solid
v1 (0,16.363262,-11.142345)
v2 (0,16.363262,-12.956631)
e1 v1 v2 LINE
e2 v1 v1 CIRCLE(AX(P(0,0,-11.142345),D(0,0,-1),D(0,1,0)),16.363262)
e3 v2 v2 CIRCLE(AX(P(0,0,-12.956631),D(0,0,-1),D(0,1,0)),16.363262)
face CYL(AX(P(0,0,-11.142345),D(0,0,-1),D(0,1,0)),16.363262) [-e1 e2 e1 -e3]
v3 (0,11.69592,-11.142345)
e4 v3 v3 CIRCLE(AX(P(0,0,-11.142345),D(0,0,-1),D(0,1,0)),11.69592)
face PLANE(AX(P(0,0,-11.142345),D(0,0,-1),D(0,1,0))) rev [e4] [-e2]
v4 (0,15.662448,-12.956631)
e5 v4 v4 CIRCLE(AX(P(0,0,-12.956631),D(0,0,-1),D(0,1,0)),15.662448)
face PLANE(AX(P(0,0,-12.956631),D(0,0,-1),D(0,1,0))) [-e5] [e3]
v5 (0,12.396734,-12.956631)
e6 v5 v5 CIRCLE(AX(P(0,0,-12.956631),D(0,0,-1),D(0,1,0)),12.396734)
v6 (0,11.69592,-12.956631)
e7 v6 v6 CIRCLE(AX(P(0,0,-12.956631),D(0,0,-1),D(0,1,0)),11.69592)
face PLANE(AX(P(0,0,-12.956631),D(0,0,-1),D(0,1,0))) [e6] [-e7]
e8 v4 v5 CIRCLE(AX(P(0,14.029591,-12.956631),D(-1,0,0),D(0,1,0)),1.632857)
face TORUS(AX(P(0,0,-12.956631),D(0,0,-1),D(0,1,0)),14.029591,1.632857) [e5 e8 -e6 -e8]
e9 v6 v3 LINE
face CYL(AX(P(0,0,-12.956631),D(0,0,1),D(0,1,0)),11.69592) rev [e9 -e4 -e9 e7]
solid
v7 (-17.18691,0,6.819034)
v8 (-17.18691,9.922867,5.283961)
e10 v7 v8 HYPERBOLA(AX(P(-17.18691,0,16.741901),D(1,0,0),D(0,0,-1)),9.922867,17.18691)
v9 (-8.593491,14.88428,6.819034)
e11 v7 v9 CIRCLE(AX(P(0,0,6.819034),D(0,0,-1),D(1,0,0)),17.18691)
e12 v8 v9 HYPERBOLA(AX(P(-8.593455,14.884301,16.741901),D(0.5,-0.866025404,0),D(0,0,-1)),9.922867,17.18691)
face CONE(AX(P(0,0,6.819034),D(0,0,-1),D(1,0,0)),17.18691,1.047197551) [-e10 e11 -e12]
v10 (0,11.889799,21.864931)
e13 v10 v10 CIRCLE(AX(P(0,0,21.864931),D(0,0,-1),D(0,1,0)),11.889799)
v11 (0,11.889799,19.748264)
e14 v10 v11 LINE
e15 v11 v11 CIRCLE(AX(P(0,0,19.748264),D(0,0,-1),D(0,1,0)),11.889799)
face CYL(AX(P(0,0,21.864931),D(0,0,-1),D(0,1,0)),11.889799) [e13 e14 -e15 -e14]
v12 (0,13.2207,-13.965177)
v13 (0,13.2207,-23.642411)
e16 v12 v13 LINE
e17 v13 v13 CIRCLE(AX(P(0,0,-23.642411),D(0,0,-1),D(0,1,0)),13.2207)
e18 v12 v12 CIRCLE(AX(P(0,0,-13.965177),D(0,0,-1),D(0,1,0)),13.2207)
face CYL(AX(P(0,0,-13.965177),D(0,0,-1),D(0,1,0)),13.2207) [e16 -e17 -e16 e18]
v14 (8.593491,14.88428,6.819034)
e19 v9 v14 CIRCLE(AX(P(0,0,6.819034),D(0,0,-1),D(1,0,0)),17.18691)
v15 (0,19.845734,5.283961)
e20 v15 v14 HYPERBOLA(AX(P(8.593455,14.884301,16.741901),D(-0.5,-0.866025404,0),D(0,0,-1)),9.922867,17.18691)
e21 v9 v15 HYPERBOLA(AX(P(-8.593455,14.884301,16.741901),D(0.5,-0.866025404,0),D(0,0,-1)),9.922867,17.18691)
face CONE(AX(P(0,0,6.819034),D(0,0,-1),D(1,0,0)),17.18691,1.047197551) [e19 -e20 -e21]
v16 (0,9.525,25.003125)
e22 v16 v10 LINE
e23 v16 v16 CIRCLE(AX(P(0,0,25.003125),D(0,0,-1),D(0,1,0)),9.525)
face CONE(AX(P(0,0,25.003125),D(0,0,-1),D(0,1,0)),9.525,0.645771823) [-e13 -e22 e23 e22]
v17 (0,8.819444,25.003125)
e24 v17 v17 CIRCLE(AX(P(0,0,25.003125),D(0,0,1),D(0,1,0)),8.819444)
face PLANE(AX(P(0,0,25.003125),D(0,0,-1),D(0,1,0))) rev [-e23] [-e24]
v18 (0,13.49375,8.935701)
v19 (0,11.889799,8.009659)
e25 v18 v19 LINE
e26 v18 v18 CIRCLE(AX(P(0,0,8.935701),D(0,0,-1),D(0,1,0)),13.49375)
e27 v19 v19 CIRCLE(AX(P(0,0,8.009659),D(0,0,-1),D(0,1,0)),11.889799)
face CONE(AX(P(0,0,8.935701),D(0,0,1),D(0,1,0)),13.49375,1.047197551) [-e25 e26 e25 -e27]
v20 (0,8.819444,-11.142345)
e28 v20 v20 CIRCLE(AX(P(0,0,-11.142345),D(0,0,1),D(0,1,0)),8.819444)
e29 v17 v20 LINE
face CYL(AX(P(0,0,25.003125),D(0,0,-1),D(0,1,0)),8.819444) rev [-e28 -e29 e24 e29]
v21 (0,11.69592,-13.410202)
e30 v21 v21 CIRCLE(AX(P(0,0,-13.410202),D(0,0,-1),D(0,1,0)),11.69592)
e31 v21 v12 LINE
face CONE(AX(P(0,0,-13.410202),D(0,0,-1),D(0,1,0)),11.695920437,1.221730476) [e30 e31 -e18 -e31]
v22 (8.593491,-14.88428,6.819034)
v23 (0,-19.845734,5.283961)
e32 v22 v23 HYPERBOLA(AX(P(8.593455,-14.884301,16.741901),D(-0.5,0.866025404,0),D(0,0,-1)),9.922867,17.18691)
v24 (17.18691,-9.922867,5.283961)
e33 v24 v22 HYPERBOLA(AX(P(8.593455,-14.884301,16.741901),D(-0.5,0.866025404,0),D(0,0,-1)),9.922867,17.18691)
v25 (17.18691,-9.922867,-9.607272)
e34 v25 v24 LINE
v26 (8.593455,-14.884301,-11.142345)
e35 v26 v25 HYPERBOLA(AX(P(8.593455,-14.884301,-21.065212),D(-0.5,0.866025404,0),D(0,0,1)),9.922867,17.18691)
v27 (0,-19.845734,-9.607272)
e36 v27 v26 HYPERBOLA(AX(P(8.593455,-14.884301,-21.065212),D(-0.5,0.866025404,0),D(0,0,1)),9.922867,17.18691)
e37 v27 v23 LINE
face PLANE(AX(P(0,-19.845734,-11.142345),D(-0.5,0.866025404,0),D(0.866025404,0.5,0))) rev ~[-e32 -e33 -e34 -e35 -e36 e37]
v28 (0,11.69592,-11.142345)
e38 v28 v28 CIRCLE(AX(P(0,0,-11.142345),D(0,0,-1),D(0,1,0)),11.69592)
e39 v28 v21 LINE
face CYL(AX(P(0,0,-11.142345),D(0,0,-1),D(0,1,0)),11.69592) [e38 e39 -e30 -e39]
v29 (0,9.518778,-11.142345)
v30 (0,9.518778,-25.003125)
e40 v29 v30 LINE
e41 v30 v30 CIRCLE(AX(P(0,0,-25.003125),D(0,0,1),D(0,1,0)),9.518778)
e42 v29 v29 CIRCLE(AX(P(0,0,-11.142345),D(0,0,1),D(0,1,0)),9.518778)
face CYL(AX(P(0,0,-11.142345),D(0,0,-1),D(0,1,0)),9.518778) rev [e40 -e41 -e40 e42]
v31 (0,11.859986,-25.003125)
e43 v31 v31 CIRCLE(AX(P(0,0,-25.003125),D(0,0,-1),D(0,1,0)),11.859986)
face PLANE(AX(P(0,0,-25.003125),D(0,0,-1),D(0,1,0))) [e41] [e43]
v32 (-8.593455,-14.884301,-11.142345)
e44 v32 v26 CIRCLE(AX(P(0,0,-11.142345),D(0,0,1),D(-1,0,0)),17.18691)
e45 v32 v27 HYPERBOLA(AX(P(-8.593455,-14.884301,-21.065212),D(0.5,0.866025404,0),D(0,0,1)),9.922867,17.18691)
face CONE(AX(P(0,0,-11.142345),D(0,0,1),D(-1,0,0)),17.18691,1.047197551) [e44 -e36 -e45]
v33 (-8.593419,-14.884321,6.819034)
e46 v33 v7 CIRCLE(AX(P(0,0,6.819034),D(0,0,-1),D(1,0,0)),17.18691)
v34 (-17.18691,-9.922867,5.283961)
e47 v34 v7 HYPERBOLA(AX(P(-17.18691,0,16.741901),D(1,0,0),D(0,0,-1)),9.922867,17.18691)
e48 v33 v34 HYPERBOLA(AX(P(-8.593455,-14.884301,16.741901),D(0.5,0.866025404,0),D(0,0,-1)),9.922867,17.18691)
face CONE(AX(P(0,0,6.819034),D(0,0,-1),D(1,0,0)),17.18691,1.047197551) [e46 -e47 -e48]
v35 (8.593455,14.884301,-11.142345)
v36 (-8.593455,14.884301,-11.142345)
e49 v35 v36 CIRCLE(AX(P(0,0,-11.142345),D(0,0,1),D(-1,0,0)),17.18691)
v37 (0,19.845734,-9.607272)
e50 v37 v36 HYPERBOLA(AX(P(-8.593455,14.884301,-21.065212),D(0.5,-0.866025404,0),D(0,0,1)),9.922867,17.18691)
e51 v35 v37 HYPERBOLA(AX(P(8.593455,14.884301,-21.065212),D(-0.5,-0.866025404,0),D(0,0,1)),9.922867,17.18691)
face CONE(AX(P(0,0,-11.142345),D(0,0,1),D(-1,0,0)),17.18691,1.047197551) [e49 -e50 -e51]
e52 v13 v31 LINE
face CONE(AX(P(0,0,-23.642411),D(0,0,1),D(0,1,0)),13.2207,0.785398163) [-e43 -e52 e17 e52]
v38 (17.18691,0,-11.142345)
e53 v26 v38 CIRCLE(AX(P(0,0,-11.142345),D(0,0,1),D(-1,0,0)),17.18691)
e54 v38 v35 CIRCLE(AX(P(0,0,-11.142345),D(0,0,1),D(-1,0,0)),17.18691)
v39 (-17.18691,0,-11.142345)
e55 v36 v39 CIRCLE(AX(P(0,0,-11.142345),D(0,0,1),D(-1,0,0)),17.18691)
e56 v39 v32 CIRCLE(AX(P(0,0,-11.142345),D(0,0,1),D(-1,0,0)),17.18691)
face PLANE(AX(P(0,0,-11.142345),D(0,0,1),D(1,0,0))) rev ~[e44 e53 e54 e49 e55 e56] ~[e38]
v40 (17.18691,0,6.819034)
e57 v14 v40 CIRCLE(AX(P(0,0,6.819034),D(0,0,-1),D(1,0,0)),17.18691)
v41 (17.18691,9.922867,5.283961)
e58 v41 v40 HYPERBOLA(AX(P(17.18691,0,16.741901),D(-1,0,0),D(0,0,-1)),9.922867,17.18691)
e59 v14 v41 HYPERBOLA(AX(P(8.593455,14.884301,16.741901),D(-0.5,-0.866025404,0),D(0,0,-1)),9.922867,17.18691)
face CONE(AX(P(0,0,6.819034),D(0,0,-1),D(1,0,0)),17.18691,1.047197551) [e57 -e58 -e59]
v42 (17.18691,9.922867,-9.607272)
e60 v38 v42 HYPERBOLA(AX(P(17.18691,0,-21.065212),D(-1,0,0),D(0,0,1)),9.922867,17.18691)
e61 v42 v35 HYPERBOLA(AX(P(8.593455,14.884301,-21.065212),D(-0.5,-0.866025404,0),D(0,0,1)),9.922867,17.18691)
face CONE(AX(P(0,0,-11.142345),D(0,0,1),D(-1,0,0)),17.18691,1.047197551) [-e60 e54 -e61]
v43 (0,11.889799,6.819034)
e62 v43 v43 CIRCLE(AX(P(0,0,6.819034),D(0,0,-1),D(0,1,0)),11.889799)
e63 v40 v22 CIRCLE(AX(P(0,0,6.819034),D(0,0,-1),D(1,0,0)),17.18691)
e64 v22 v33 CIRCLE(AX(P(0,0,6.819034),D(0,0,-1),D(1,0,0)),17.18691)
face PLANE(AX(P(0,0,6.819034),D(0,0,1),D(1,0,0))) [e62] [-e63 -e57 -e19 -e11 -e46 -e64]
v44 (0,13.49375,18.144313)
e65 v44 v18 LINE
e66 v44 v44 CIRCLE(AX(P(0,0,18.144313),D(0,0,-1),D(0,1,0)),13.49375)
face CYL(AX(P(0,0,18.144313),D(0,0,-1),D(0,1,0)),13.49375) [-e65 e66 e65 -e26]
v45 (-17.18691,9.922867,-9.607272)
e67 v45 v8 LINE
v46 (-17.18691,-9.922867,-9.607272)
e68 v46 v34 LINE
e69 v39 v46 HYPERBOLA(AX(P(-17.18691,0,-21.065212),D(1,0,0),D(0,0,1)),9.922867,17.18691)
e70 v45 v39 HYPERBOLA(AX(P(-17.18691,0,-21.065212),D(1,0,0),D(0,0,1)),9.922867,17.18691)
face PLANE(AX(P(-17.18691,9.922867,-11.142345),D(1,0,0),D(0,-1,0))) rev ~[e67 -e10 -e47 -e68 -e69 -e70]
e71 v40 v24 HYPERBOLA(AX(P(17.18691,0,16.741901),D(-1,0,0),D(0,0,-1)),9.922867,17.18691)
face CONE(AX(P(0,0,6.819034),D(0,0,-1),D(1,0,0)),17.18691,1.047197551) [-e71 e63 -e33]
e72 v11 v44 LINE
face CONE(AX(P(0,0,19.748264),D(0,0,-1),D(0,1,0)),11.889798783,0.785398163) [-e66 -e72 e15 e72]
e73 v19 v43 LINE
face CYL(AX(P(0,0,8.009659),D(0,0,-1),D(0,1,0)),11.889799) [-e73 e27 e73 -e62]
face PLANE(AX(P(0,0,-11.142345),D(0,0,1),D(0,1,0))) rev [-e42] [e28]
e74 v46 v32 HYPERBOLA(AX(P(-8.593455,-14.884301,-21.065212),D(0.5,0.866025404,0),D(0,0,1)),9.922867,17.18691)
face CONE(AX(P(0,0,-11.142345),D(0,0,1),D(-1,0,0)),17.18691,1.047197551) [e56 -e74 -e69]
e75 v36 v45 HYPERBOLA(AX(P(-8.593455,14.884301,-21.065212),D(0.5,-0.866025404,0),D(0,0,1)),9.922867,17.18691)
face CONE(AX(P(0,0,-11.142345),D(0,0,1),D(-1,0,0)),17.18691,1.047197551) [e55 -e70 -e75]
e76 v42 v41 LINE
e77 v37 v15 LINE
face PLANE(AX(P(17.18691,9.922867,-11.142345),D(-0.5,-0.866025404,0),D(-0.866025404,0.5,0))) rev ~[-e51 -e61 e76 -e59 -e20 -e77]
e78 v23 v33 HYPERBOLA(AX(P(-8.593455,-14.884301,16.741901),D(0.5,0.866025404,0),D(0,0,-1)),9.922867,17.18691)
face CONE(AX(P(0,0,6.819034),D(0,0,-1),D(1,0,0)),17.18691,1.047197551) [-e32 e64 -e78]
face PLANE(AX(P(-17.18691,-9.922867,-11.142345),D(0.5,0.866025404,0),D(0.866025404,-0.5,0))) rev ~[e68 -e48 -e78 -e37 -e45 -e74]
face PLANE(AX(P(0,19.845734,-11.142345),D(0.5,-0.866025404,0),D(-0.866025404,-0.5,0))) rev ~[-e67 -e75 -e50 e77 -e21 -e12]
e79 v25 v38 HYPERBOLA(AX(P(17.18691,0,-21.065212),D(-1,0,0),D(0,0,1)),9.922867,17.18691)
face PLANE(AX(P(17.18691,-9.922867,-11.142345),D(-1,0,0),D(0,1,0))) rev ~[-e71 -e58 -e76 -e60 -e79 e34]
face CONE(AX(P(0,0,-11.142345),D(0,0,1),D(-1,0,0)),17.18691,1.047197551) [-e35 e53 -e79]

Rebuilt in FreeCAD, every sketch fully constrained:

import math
import FreeCAD as App
import Part
import Sketcher
from FreeCAD import Vector
Q = App.Units.Quantity


def add_polygon(sketch, points):
    """Adds a closed chain of lines whose ends are joined by coincident constraints."""
    first, n = sketch.GeometryCount, len(points)
    for a, b in zip(points, points[1:] + points[:1]):
        sketch.addGeometry(Part.LineSegment(App.Vector(*a, 0), App.Vector(*b, 0)), False)
    for i in range(n):
        sketch.addConstraint(Sketcher.Constraint("Coincident", first + i, 2, first + (i + 1) % n, 1))

doc = App.newDocument("Part")
params = doc.addObject("Spreadsheet::Sheet", "Params")
for row, (alias, value) in enumerate([
    ("pad1_length", "17.961379 mm"),
    ("pocket1_length", "18.961379 mm"),
    ("pocket1_taper", "60 deg"),
    ("pocket2_length", "18.961379 mm"),
    ("pocket2_taper", "60 deg"),
    ("sketch4_width", "0.375 in"),
    ("sketch4_height", "1.96875 in"),
    ("revolution_angle", "360 deg"),
    ("sketch5_height", "1.96875 in"),
    ("groove_angle", "360 deg"),
    ("revolution2_angle", "360 deg"),
], start=1):
    params.set(f"A{row}", alias)
    params.set(f"B{row}", "=" + value)
    params.setAlias(f"B{row}", alias)

body = doc.addObject("PartDesign::Body", "Body")

# Sketch on XY plane
sketch1 = body.newObject("Sketcher::SketchObject", "Sketch")
sketch1.AttachmentSupport = (doc.getObject("XY_Plane"), [""])
sketch1.MapMode = "FlatFace"
sketch1.AttachmentOffset = App.Placement(Vector(0, 0, -11.142345), App.Rotation())
add_polygon(sketch1, [(0, 19.845734), (-17.18691, 9.922867), (-17.18691, -9.922867), (0, -19.845734), (17.18691, -9.922867), (17.18691, 9.922867)])  # lines 0-5
sketch1.addConstraint([
    Sketcher.Constraint("Vertical", 1),
    Sketcher.Constraint("Vertical", 4),
    Sketcher.Constraint("Symmetric", 0, 2, 3, 2, -1, 1),
    Sketcher.Constraint("Symmetric", 2, 2, 5, 2, -1, 1),
    Sketcher.Constraint("PointOnObject", 2, 2, -2),
    Sketcher.Constraint("Parallel", 2, 5),
    Sketcher.Constraint("Horizontal", 1, 2, 3, 2),
    Sketcher.Constraint("Angle", 0, Q("-150 deg")),
    Sketcher.Constraint("DistanceX", 1, 2, 3, 2, Q("1.3533 in")),
    Sketcher.Constraint("DistanceY", 2, 2, 0, 2, Q("29.768601 mm")),
])
pad1 = body.newObject("PartDesign::Pad", "Pad")
pad1.Profile = sketch1
pad1.setExpression("Length", "Params.pad1_length")

# Sketch on XY plane
sketch2 = body.newObject("Sketcher::SketchObject", "Sketch001")
sketch2.AttachmentSupport = (doc.getObject("XY_Plane"), [""])
sketch2.MapMode = "FlatFace"
sketch2.AttachmentOffset = App.Placement(Vector(0, 0, 6.819034), App.Rotation())
add_polygon(sketch2, [(-56.578, 59.237), (-56.578, -59.237), (56.578, -59.237), (56.578, 59.237)])  # lines 0-3
sketch2.addGeometry(Part.Circle(Vector(0, 0, 0), Vector(0, 0, 1), 17.18691), False)  # 4
sketch2.addConstraint([
    Sketcher.Constraint("Vertical", 0),
    Sketcher.Constraint("Horizontal", 1),
    Sketcher.Constraint("Vertical", 2),
    Sketcher.Constraint("Horizontal", 3),
    Sketcher.Constraint("Coincident", 4, 3, -1, 1),
    Sketcher.Constraint("Symmetric", 0, 2, 2, 2, -1, 1),
    Sketcher.Constraint("Diameter", 4, Q("1.3533 in")),
    Sketcher.Constraint("DistanceX", 1, 1, 1, 2, Q("113.156 mm")),
    Sketcher.Constraint("DistanceY", 0, 2, 0, 1, Q("118.474 mm")),
])
pocket1 = body.newObject("PartDesign::Pocket", "Pocket")
pocket1.Profile = sketch2
pocket1.setExpression("Length", "Params.pocket1_length")
pocket1.setExpression("TaperAngle", "Params.pocket1_taper")

# Sketch on XY plane
sketch3 = body.newObject("Sketcher::SketchObject", "Sketch002")
sketch3.AttachmentSupport = (doc.getObject("XY_Plane"), [""])
sketch3.MapMode = "FlatFace"
sketch3.AttachmentOffset = App.Placement(Vector(0, 0, -11.142345), App.Rotation())
add_polygon(sketch3, [(56.578, 59.237), (56.578, -59.237), (-56.578, -59.237), (-56.578, 59.237)])  # lines 0-3
sketch3.addGeometry(Part.Circle(Vector(0, 0, 0), Vector(0, 0, 1), 17.18691), False)  # 4
sketch3.addConstraint([
    Sketcher.Constraint("Vertical", 0),
    Sketcher.Constraint("Horizontal", 1),
    Sketcher.Constraint("Vertical", 2),
    Sketcher.Constraint("Horizontal", 3),
    Sketcher.Constraint("Coincident", 4, 3, -1, 1),
    Sketcher.Constraint("Symmetric", 0, 2, 2, 2, -1, 1),
    Sketcher.Constraint("Diameter", 4, Q("1.3533 in")),
    Sketcher.Constraint("DistanceX", 1, 2, 1, 1, Q("113.156 mm")),
    Sketcher.Constraint("DistanceY", 0, 2, 0, 1, Q("118.474 mm")),
])
pocket2 = body.newObject("PartDesign::Pocket", "Pocket001")
pocket2.Profile = sketch3
pocket2.setExpression("Length", "Params.pocket2_length")
pocket2.Reversed = True
pocket2.setExpression("TaperAngle", "Params.pocket2_taper")

# Sketch on YZ plane
sketch4 = body.newObject("Sketcher::SketchObject", "Sketch003")
sketch4.AttachmentSupport = (doc.getObject("YZ_Plane"), [""])
sketch4.MapMode = "FlatFace"
add_polygon(sketch4, [(9.525, 25.003125), (0, 25.003125), (0, -25.003125), (11.859986, -25.003125), (13.2207, -23.642411), (13.2207, -13.965177), (11.69592, -13.410202), (11.69592, -11.142345), (13.2207, -11.142345), (13.2207, -2.161655), (11.889799, -2.161655), (11.889799, 8.009659), (13.49375, 8.935701), (13.49375, 18.144313), (11.889799, 19.748264), (11.889799, 21.864931)])  # lines 0-15
sketch4.addConstraint([
    Sketcher.Constraint("Horizontal", 0),
    Sketcher.Constraint("Vertical", 1),
    Sketcher.Constraint("Horizontal", 2),
    Sketcher.Constraint("Vertical", 4),
    Sketcher.Constraint("Vertical", 6),
    Sketcher.Constraint("Horizontal", 7),
    Sketcher.Constraint("Vertical", 8),
    Sketcher.Constraint("Horizontal", 9),
    Sketcher.Constraint("Vertical", 10),
    Sketcher.Constraint("Vertical", 12),
    Sketcher.Constraint("Vertical", 14),
    Sketcher.Constraint("Symmetric", 0, 2, 1, 2, -1, 1),
    Sketcher.Constraint("Perpendicular", 3, 13),
    Sketcher.Constraint("Vertical", 4, 2, 7, 2),
    Sketcher.Constraint("Vertical", 10, 2, 13, 2),
    Sketcher.Constraint("Angle", 3, Q("45 deg")),
    Sketcher.Constraint("Angle", 5, Q("160 deg")),
    Sketcher.Constraint("Angle", 11, Q("30 deg")),
    Sketcher.Constraint("Angle", 15, Q("127 deg")),
    Sketcher.Constraint("DistanceX", 0, 2, 0, 1, Q("0.375 in")),
    Sketcher.Constraint("DistanceY", 1, 2, 1, 1, Q("1.96875 in")),
    Sketcher.Constraint("DistanceX", -1, 1, 11, 2, Q("0.53125 in")),
    Sketcher.Constraint("DistanceX", 9, 2, 9, 1, Q("1.330901 mm")),
    Sketcher.Constraint("DistanceX", -1, 1, 3, 2, Q("0.5205 in")),
    Sketcher.Constraint("DistanceY", 2, 2, 6, 2, Q("0.5457 in")),
    Sketcher.Constraint("DistanceX", 7, 1, 7, 2, Q("1.52478 mm")),
    Sketcher.Constraint("DistanceY", 8, 1, 8, 2, Q("8.98069 mm")),
    Sketcher.Constraint("DistanceY", -1, 1, 11, 2, Q("8.935701 mm")),
    Sketcher.Constraint("DistanceY", 4, 2, 0, 2, Q("38.968302 mm")),
    Sketcher.Constraint("Distance", 3, Q("1.924341 mm")),
    Sketcher.Constraint("DistanceY", 12, 1, 12, 2, Q("9.208612 mm")),
])
sketch4.setExpression("Constraints[35]", "Params.sketch4_width")
sketch4.setExpression("Constraints[36]", "Params.sketch4_height")
revolution = body.newObject("PartDesign::Revolution", "Revolution")
revolution.Profile = sketch4
revolution.ReferenceAxis = (sketch4, ["V_Axis"])
revolution.setExpression("Angle", "Params.revolution_angle")

# Sketch on YZ plane
sketch5 = body.newObject("Sketcher::SketchObject", "Sketch004")
sketch5.AttachmentSupport = (doc.getObject("YZ_Plane"), [""])
sketch5.MapMode = "FlatFace"
add_polygon(sketch5, [(8.819444, -11.142345), (8.819444, 25.003125), (0, 25.003125), (0, -25.003125), (9.518778, -25.003125), (9.518778, -11.142345)])  # lines 0-5
sketch5.addConstraint([
    Sketcher.Constraint("Vertical", 0),
    Sketcher.Constraint("Horizontal", 1),
    Sketcher.Constraint("Vertical", 2),
    Sketcher.Constraint("Horizontal", 3),
    Sketcher.Constraint("Vertical", 4),
    Sketcher.Constraint("Horizontal", 5),
    Sketcher.Constraint("Symmetric", 1, 2, 2, 2, -1, 1),
    Sketcher.Constraint("DistanceY", 2, 2, 2, 1, Q("1.96875 in")),
    Sketcher.Constraint("DistanceY", 4, 1, 4, 2, Q("0.5457 in")),
    Sketcher.Constraint("DistanceX", 1, 2, 1, 1, Q("8.819444 mm")),
    Sketcher.Constraint("DistanceX", 3, 1, 3, 2, Q("9.518778 mm")),
])
sketch5.setExpression("Constraints[13]", "Params.sketch5_height")
groove = body.newObject("PartDesign::Groove", "Groove")
groove.Profile = sketch5
groove.ReferenceAxis = (sketch5, ["V_Axis"])
groove.setExpression("Angle", "Params.groove_angle")
body2 = doc.addObject("PartDesign::Body", "Body001")

# Sketch on YZ plane
sketch6 = body2.newObject("Sketcher::SketchObject", "Sketch005")
sketch6.AttachmentSupport = (doc.getObject("YZ_Plane001"), [""])
sketch6.MapMode = "FlatFace"
sketch6.addGeometry([
    Part.LineSegment(Vector(16.363262, -11.142345, 0), Vector(11.69592, -11.142345, 0)),  # 0
    Part.LineSegment(Vector(11.69592, -11.142345, 0), Vector(11.69592, -12.956631, 0)),  # 1
    Part.LineSegment(Vector(11.69592, -12.956631, 0), Vector(12.396734, -12.956631, 0)),  # 2
    Part.ArcOfCircle(Part.Circle(Vector(14.029591, -12.956631, 0), Vector(0, 0, 1), 1.632857), math.radians(180), math.radians(360)),  # 3
    Part.LineSegment(Vector(15.662448, -12.956631, 0), Vector(16.363262, -12.956631, 0)),  # 4
    Part.LineSegment(Vector(16.363262, -12.956631, 0), Vector(16.363262, -11.142345, 0)),  # 5
], False)
sketch6.addConstraint([
    Sketcher.Constraint("Coincident", 0, 2, 1, 1),
    Sketcher.Constraint("Coincident", 1, 2, 2, 1),
    Sketcher.Constraint("Coincident", 2, 2, 3, 1),
    Sketcher.Constraint("Coincident", 3, 2, 4, 1),
    Sketcher.Constraint("Coincident", 4, 2, 5, 1),
    Sketcher.Constraint("Coincident", 5, 2, 0, 1),
    Sketcher.Constraint("Horizontal", 0),
    Sketcher.Constraint("Vertical", 1),
    Sketcher.Constraint("Horizontal", 2),
    Sketcher.Constraint("Horizontal", 4),
    Sketcher.Constraint("Vertical", 5),
    Sketcher.Constraint("Horizontal", 3, 3, 1, 2),
    Sketcher.Constraint("Horizontal", 2, 2, 3, 2),
    Sketcher.Constraint("Equal", 2, 4),
    Sketcher.Constraint("Radius", 3, Q("1.632857 mm")),
    Sketcher.Constraint("DistanceX", 0, 2, 0, 1, Q("4.667341 mm")),
    Sketcher.Constraint("DistanceY", 1, 2, 1, 1, Q("1.814286 mm")),
    Sketcher.Constraint("DistanceX", -1, 1, 3, 3, Q("14.029591 mm")),
    Sketcher.Constraint("DistanceY", 3, 3, -1, 1, Q("12.956631 mm")),
])
revolution2 = body2.newObject("PartDesign::Revolution", "Revolution001")
revolution2.Profile = sketch6
revolution2.ReferenceAxis = (sketch6, ["V_Axis"])
revolution2.setExpression("Angle", "Params.revolution2_angle")

doc.recompute()
